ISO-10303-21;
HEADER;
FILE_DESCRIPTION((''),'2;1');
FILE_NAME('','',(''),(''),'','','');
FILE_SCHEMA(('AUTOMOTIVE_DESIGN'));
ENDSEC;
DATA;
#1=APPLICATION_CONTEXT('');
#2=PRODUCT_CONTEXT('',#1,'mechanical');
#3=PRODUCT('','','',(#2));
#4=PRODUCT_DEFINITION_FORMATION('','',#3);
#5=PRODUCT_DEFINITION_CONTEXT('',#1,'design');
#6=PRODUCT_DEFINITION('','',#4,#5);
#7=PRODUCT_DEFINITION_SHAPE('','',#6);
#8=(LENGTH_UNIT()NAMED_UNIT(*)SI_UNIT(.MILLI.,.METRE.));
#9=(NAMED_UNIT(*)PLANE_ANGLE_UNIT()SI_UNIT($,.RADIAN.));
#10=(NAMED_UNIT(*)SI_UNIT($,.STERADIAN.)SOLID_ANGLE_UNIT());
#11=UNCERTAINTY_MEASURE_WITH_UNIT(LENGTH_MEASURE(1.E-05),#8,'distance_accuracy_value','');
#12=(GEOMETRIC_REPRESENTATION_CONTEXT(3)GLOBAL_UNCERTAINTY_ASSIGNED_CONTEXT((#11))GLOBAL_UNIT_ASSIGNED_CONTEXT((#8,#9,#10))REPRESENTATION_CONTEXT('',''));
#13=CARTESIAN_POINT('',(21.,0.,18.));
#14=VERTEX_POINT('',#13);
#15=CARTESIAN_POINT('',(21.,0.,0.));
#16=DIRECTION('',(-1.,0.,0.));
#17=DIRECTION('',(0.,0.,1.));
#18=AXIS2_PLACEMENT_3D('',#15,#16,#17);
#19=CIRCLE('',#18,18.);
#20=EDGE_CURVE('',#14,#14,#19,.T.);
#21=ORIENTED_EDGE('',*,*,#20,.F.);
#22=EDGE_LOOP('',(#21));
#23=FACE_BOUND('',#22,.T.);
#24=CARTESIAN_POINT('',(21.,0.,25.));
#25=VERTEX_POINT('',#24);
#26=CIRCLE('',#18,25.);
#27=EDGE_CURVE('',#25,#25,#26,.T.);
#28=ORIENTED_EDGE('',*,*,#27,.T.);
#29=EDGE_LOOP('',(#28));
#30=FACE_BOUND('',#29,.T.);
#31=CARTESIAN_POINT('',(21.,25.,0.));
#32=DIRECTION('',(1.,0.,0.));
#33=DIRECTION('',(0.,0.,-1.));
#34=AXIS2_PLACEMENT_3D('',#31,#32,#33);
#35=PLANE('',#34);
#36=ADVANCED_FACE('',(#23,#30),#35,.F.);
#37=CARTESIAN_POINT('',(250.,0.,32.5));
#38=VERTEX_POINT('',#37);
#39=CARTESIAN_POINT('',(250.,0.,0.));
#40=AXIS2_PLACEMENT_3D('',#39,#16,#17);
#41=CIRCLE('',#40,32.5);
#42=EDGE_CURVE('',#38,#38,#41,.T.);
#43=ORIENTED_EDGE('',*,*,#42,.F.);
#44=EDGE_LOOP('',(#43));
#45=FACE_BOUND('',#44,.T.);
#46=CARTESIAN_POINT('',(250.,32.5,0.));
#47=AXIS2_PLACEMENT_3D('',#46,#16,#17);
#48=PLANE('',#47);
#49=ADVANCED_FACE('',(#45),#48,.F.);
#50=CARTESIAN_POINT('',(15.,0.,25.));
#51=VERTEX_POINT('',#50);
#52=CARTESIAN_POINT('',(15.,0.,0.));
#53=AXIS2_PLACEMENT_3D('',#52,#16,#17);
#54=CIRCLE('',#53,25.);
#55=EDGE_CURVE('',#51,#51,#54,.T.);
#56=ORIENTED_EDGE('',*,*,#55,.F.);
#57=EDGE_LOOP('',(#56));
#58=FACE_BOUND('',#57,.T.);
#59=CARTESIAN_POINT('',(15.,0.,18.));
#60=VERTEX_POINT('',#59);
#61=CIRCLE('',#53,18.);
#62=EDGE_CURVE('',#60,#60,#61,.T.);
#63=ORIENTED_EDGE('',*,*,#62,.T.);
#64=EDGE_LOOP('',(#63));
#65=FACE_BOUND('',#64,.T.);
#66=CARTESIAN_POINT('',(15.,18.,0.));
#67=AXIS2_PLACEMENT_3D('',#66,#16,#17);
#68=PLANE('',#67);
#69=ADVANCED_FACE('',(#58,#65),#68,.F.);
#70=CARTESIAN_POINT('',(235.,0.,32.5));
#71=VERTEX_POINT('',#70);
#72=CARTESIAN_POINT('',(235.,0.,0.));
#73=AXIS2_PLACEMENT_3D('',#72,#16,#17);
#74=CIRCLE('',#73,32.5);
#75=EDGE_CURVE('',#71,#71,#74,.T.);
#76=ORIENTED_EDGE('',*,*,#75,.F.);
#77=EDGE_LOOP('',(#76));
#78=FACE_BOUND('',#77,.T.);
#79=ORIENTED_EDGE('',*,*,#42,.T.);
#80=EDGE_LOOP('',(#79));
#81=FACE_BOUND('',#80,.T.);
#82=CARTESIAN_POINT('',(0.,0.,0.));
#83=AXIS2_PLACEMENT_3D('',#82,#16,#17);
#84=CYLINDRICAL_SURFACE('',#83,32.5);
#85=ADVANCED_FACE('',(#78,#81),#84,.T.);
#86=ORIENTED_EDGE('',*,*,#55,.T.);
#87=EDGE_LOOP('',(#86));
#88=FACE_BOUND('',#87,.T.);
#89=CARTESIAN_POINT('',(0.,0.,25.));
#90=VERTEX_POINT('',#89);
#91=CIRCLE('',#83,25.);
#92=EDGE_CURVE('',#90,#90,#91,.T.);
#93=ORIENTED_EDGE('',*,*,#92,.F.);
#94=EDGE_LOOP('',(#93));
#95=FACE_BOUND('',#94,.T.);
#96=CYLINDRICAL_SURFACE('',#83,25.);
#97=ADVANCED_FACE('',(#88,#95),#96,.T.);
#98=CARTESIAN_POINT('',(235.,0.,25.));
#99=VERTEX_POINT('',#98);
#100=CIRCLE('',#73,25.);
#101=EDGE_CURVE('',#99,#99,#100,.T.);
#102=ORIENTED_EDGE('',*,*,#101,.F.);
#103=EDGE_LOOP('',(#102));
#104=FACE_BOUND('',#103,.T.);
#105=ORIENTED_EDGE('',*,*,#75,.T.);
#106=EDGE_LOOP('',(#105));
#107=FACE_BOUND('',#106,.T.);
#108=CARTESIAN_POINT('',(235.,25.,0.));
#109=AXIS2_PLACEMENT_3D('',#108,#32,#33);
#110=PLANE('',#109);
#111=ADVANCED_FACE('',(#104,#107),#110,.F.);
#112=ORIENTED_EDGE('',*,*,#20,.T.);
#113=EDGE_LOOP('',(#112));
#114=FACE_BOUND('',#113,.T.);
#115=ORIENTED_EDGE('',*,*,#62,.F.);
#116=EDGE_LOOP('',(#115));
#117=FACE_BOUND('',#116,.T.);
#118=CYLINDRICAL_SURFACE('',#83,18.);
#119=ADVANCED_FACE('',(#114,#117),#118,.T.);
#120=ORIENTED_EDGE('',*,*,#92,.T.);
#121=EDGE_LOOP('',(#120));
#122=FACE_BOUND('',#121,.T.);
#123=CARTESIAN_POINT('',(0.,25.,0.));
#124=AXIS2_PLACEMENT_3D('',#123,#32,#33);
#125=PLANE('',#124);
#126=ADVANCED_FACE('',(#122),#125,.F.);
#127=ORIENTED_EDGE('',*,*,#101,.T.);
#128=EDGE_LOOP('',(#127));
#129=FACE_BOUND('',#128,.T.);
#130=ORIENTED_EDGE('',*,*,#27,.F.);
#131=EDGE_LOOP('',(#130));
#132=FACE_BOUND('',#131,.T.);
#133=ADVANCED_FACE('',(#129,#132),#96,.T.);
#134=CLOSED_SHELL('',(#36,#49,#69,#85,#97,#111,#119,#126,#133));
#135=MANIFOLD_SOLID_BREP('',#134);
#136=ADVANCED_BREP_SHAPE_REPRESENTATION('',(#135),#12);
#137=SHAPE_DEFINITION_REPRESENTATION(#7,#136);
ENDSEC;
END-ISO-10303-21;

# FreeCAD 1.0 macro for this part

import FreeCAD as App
import Part
import Sketcher
from FreeCAD import Vector

doc = App.newDocument("Part")
body = doc.addObject("PartDesign::Body", "Body")

sketch1 = doc.addObject("Sketcher::SketchObject", "Sketch")
body.addObject(sketch1)
sketch1.AttachmentSupport = (doc.XY_Plane, [""])
sketch1.MapMode = "FlatFace"
sketch1.addGeometry([
    Part.LineSegment(Vector(0, 0, 0), Vector(250, 0, 0)),
    Part.LineSegment(Vector(250, 0, 0), Vector(250, 32, 0)),
    Part.LineSegment(Vector(250, 32, 0), Vector(235, 32, 0)),
    Part.LineSegment(Vector(235, 32, 0), Vector(235, 25, 0)),
    Part.LineSegment(Vector(235, 25, 0), Vector(21, 25, 0)),
    Part.LineSegment(Vector(21, 25, 0), Vector(21, 18, 0)),
    Part.LineSegment(Vector(21, 18, 0), Vector(15, 18, 0)),
    Part.LineSegment(Vector(15, 18, 0), Vector(15, 25, 0)),
    Part.LineSegment(Vector(15, 25, 0), Vector(0, 25, 0)),
    Part.LineSegment(Vector(0, 25, 0), Vector(0, 0, 0)),
], False)
sketch1.addConstraint([
    Sketcher.Constraint("Coincident", 0, 2, 1, 1),
    Sketcher.Constraint("Coincident", 1, 2, 2, 1),
    Sketcher.Constraint("Coincident", 2, 2, 3, 1),
    Sketcher.Constraint("Coincident", 3, 2, 4, 1),
    Sketcher.Constraint("Coincident", 4, 2, 5, 1),
    Sketcher.Constraint("Coincident", 5, 2, 6, 1),
    Sketcher.Constraint("Coincident", 6, 2, 7, 1),
    Sketcher.Constraint("Coincident", 7, 2, 8, 1),
    Sketcher.Constraint("Coincident", 8, 2, 9, 1),
    Sketcher.Constraint("Coincident", 9, 2, 0, 1),
    Sketcher.Constraint("Horizontal", 0),
    Sketcher.Constraint("Vertical", 1),
    Sketcher.Constraint("Horizontal", 2),
    Sketcher.Constraint("Vertical", 3),
    Sketcher.Constraint("Horizontal", 4),
    Sketcher.Constraint("Vertical", 5),
    Sketcher.Constraint("Horizontal", 6),
    Sketcher.Constraint("Vertical", 7),
    Sketcher.Constraint("Horizontal", 8),
    Sketcher.Constraint("Vertical", 9),
    Sketcher.Constraint("Coincident", 9, 2, -1, 1),
    Sketcher.Constraint("Horizontal", 4, 2, 7, 2),
    Sketcher.Constraint("Equal", 2, 8),
    Sketcher.Constraint("DistanceX", 0, 1, 0, 2, 250.0),
    Sketcher.Constraint("DistanceX", 2, 2, 2, 1, 15.0),
    Sketcher.Constraint("DistanceX", 4, 2, 4, 1, 214.0),
    Sketcher.Constraint("DistanceY", 5, 2, 5, 1, 7.0),
    Sketcher.Constraint("DistanceY", 9, 2, 9, 1, 25.0),
    Sketcher.Constraint("DistanceY", 1, 1, 1, 2, 32.5),
])
revolution = doc.addObject("PartDesign::Revolution", "Revolution")
body.addObject(revolution)
revolution.Profile = sketch1
revolution.ReferenceAxis = (sketch1, ["H_Axis"])
revolution.Angle = 360

doc.recompute()
